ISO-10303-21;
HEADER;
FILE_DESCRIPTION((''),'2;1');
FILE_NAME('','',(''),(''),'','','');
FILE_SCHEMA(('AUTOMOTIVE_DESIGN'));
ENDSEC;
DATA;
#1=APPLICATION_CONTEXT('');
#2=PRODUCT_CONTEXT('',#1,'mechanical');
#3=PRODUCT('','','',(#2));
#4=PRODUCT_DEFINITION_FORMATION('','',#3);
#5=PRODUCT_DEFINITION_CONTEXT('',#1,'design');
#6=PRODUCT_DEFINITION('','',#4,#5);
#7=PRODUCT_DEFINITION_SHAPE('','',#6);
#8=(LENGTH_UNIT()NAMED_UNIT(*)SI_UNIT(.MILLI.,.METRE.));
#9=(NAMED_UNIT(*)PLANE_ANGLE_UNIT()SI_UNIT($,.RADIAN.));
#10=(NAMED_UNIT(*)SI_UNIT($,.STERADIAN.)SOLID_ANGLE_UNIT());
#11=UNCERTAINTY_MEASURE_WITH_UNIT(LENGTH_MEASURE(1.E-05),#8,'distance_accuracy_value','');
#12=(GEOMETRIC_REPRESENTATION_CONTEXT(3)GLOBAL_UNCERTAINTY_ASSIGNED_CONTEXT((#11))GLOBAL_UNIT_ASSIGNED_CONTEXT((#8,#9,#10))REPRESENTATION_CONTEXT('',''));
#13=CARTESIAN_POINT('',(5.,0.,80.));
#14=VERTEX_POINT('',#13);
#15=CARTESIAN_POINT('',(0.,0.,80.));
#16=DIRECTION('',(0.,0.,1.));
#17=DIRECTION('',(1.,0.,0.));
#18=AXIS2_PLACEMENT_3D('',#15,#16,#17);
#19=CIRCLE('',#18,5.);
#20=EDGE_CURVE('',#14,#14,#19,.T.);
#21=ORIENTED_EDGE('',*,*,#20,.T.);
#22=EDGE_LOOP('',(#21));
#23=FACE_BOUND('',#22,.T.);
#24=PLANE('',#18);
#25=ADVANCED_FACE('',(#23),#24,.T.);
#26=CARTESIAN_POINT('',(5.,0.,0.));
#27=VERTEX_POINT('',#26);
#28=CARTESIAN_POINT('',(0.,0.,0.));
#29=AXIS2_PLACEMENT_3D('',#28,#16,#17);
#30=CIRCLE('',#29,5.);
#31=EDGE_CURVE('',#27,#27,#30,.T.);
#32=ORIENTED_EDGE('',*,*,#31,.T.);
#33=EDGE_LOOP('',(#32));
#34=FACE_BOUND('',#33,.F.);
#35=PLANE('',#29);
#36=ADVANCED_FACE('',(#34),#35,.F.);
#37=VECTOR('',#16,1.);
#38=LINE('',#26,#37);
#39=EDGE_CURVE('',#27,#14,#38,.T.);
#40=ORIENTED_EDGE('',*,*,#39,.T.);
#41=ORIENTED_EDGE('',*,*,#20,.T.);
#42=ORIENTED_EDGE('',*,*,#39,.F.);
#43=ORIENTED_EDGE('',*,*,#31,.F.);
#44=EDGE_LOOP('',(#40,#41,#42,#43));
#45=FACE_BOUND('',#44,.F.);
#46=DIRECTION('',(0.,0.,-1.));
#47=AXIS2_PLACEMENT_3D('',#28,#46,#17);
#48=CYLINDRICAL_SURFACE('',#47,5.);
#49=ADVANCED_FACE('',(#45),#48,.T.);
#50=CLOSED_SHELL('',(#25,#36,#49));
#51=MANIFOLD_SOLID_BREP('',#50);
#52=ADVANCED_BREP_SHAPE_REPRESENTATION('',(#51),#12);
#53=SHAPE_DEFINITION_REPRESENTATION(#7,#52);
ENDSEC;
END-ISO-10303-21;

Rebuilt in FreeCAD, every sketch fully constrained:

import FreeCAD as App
import Part
import Sketcher
from FreeCAD import Vector
Q = App.Units.Quantity

doc = App.newDocument("Part")
body = doc.addObject("PartDesign::Body", "Body")

# Sketch on XY plane
sketch1 = body.newObject("Sketcher::SketchObject", "Sketch")
sketch1.AttachmentSupport = (doc.getObject("XY_Plane"), [""])
sketch1.MapMode = "FlatFace"
sketch1.addGeometry(Part.Circle(Vector(0, 0, 0), Vector(0, 0, 1), 5), False)
sketch1.addConstraint([
    Sketcher.Constraint("Coincident", 0, 3, -1, 1),
    Sketcher.Constraint("Diameter", 0, Q("10 mm")),
])
pad1 = body.newObject("PartDesign::Pad", "Pad")
pad1.Profile = sketch1
pad1.Length = 80

doc.recompute()
